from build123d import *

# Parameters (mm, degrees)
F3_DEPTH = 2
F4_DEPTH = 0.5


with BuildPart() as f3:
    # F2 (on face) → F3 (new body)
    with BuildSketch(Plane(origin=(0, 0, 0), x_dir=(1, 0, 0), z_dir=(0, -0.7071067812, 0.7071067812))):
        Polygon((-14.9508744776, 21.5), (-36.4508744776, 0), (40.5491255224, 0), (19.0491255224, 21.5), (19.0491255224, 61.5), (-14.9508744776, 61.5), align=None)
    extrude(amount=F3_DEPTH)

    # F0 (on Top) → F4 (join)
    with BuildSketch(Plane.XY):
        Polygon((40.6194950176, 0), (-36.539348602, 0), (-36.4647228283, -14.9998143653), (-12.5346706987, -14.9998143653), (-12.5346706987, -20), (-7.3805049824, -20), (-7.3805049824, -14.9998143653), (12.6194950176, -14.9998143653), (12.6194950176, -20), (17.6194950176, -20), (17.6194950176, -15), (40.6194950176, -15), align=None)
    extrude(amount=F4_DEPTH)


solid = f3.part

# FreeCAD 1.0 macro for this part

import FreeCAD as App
import Part
import Sketcher
from FreeCAD import Vector


def add_polygon(sketch, points):
    """Adds a closed chain of lines whose ends are joined by coincident constraints."""
    first, n = sketch.GeometryCount, len(points)
    for a, b in zip(points, points[1:] + points[:1]):
        sketch.addGeometry(Part.LineSegment(App.Vector(*a, 0), App.Vector(*b, 0)), False)
    for i in range(n):
        sketch.addConstraint(Sketcher.Constraint("Coincident", first + i, 2, first + (i + 1) % n, 1))

doc = App.newDocument("Part")
body = doc.addObject("PartDesign::Body", "Body")

# Sketch on an angled plane
sketch1 = body.newObject("Sketcher::SketchObject", "Sketch")
sketch1.Placement = App.Placement(Vector(0, 0, 0), App.Rotation(Vector(1, 0, 0), Vector(0, 0.707106781, 0.707106781), Vector(0, -0.707106781, 0.707106781), "ZXY"))
add_polygon(sketch1, [(-15, 21), (-36, 0), (41, 0), (19, 21), (19, 61), (-15, 61)])  # lines 0-5
sketch1.addConstraint(Sketcher.Constraint("Horizontal", 1))
sketch1.addConstraint(Sketcher.Constraint("Vertical", 3))
sketch1.addConstraint(Sketcher.Constraint("Horizontal", 4))
sketch1.addConstraint(Sketcher.Constraint("Vertical", 5))
sketch1.addConstraint(Sketcher.Constraint("PointOnObject", 0, 2, -1))
sketch1.addConstraint(Sketcher.Constraint("Perpendicular", 0, 2))
sketch1.addConstraint(Sketcher.Constraint("Horizontal", 2, 2, 5, 2))
sketch1.addConstraint(Sketcher.Constraint("Equal", 0, 2))
sketch1.addConstraint(Sketcher.Constraint("DistanceX", 1, 1, 1, 2, 77.0))
sketch1.addConstraint(Sketcher.Constraint("DistanceX", 4, 2, 4, 1, 34.0))
sketch1.addConstraint(Sketcher.Constraint("DistanceY", 3, 1, 3, 2, 40.0))
sketch1.addConstraint(Sketcher.Constraint("DistanceX", 0, 2, -1, 1, 36.450874))
pad1 = body.newObject("PartDesign::Pad", "Pad")
pad1.Profile = sketch1
pad1.Length = 2

# Sketch on XY plane
sketch2 = body.newObject("Sketcher::SketchObject", "Sketch001")
sketch2.AttachmentSupport = (doc.getObject("XY_Plane"), [""])
sketch2.MapMode = "FlatFace"
add_polygon(sketch2, [(40.6, 0), (-36.5, 0), (-36.5, -15), (-12.5, -15), (-12.5, -20), (-7.4, -20), (-7.4, -15), (12.6, -15), (12.6, -20), (17.6, -20), (17.6, -15), (40.6, -15)])  # lines 0-11
sketch2.addConstraint(Sketcher.Constraint("Horizontal", 0))
sketch2.addConstraint(Sketcher.Constraint("Horizontal", 2))
sketch2.addConstraint(Sketcher.Constraint("Vertical", 3))
sketch2.addConstraint(Sketcher.Constraint("Horizontal", 4))
sketch2.addConstraint(Sketcher.Constraint("Vertical", 5))
sketch2.addConstraint(Sketcher.Constraint("Horizontal", 6))
sketch2.addConstraint(Sketcher.Constraint("Vertical", 7))
sketch2.addConstraint(Sketcher.Constraint("Horizontal", 8))
sketch2.addConstraint(Sketcher.Constraint("Vertical", 9))
sketch2.addConstraint(Sketcher.Constraint("Horizontal", 10))
sketch2.addConstraint(Sketcher.Constraint("Vertical", 11))
sketch2.addConstraint(Sketcher.Constraint("PointOnObject", 0, 2, -1))
sketch2.addConstraint(Sketcher.Constraint("Horizontal", 2, 2, 5, 2))
sketch2.addConstraint(Sketcher.Constraint("Horizontal", 4, 2, 7, 2))
sketch2.addConstraint(Sketcher.Constraint("Equal", 8, 9))
sketch2.addConstraint(Sketcher.Constraint("DistanceX", 6, 1, 6, 2, 20.0))
sketch2.addConstraint(Sketcher.Constraint("DistanceX", 8, 1, 8, 2, 5.0))
sketch2.addConstraint(Sketcher.Constraint("DistanceX", 10, 1, 10, 2, 23.0))
sketch2.addConstraint(Sketcher.Constraint("DistanceY", 11, 1, 11, 2, 15.0))
sketch2.addConstraint(Sketcher.Constraint("Distance", 1, 15.0))
sketch2.addConstraint(Sketcher.Constraint("DistanceX", 0, 2, 0, 1, 77.158844))
sketch2.addConstraint(Sketcher.Constraint("DistanceX", 2, 1, 2, 2, 23.930052))
sketch2.addConstraint(Sketcher.Constraint("DistanceX", 4, 1, 4, 2, 5.154166))
sketch2.addConstraint(Sketcher.Constraint("DistanceX", 0, 2, -1, 1, 36.539349))
pad2 = body.newObject("PartDesign::Pad", "Pad001")
pad2.Profile = sketch2
pad2.Length = 0.5

doc.recompute()
